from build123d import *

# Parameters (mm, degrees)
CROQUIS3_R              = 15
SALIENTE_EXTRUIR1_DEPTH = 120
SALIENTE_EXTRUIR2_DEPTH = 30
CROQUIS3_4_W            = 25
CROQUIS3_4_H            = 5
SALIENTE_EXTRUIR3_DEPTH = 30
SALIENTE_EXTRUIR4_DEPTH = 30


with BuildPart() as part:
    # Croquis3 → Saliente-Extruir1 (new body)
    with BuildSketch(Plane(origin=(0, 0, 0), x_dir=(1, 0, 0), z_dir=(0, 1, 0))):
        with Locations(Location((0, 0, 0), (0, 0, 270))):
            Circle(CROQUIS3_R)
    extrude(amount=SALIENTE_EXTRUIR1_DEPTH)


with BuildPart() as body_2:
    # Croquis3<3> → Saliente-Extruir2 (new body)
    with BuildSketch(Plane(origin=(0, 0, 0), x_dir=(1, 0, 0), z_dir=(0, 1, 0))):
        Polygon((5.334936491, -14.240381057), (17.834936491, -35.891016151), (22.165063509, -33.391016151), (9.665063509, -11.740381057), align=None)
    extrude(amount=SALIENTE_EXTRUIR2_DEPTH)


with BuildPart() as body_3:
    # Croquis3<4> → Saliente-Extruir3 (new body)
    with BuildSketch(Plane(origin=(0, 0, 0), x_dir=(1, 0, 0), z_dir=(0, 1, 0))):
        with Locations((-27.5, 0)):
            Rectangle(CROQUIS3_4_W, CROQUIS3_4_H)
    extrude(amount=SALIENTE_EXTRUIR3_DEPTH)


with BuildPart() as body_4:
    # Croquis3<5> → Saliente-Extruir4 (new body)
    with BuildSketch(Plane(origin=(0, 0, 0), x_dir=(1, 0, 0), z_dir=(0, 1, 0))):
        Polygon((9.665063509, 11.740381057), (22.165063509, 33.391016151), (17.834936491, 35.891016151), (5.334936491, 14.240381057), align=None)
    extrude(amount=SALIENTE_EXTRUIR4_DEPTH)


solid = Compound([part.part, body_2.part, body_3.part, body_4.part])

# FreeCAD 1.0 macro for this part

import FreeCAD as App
import Part
import Sketcher
from FreeCAD import Vector
Q = App.Units.Quantity

doc = App.newDocument("Part")
body = doc.addObject("PartDesign::Body", "Body")

# Sketch on XZ plane
sketch1 = body.newObject("Sketcher::SketchObject", "Sketch")
sketch1.AttachmentSupport = (doc.getObject("XZ_Plane"), [""])
sketch1.MapMode = "FlatFace"
sketch1.addGeometry(Part.Circle(Vector(0, 0, 0), Vector(0, 0, 1), 15), False)
sketch1.addConstraint([
    Sketcher.Constraint("Coincident", 0, 3, -1, 1),
    Sketcher.Constraint("Diameter", 0, 30.0),
])
pad1 = body.newObject("PartDesign::Pad", "Pad")
pad1.Profile = sketch1
pad1.Length = 120
pad1.Reversed = True
body2 = doc.addObject("PartDesign::Body", "Body001")

# Sketch on XZ plane
sketch2 = body2.newObject("Sketcher::SketchObject", "Sketch001")
sketch2.AttachmentSupport = (doc.getObject("XZ_Plane001"), [""])
sketch2.MapMode = "FlatFace"
sketch2.addGeometry([
    Part.LineSegment(Vector(5.3, 14.2, 0), Vector(17.8, 35.9, 0)),
    Part.LineSegment(Vector(17.8, 35.9, 0), Vector(22.2, 33.4, 0)),
    Part.LineSegment(Vector(22.2, 33.4, 0), Vector(9.7, 11.7, 0)),
    Part.LineSegment(Vector(9.7, 11.7, 0), Vector(5.3, 14.2, 0)),
], False)
sketch2.addConstraint([
    Sketcher.Constraint("Coincident", 0, 2, 1, 1),
    Sketcher.Constraint("Coincident", 1, 2, 2, 1),
    Sketcher.Constraint("Coincident", 2, 2, 3, 1),
    Sketcher.Constraint("Coincident", 3, 2, 0, 1),
    Sketcher.Constraint("Perpendicular", 0, 1),
    Sketcher.Constraint("Perpendicular", 1, 2),
    Sketcher.Constraint("Perpendicular", 2, 3),
    Sketcher.Constraint("Angle", 0, Q("60 deg")),
    Sketcher.Constraint("Distance", 0, 25.0),
    Sketcher.Constraint("Distance", 1, 5.0),
    Sketcher.Constraint("DistanceY", -1, 1, 2, 2, 11.740381),
    Sketcher.Constraint("DistanceX", -1, 1, 0, 2, 17.834936),
])
pad2 = body2.newObject("PartDesign::Pad", "Pad001")
pad2.Profile = sketch2
pad2.Length = 30
pad2.Reversed = True
body3 = doc.addObject("PartDesign::Body", "Body002")

# Sketch on XZ plane
sketch3 = body3.newObject("Sketcher::SketchObject", "Sketch002")
sketch3.AttachmentSupport = (doc.getObject("XZ_Plane002"), [""])
sketch3.MapMode = "FlatFace"
sketch3.addGeometry([
    Part.LineSegment(Vector(-40, -2, 0), Vector(-40, 2, 0)),
    Part.LineSegment(Vector(-40, 2, 0), Vector(-15, 2, 0)),
    Part.LineSegment(Vector(-15, 2, 0), Vector(-15, -2, 0)),
    Part.LineSegment(Vector(-15, -2, 0), Vector(-40, -2, 0)),
], False)
sketch3.addConstraint([
    Sketcher.Constraint("Coincident", 0, 2, 1, 1),
    Sketcher.Constraint("Coincident", 1, 2, 2, 1),
    Sketcher.Constraint("Coincident", 2, 2, 3, 1),
    Sketcher.Constraint("Coincident", 3, 2, 0, 1),
    Sketcher.Constraint("Vertical", 0),
    Sketcher.Constraint("Horizontal", 1),
    Sketcher.Constraint("Vertical", 2),
    Sketcher.Constraint("Horizontal", 3),
    Sketcher.Constraint("DistanceX", 1, 1, 1, 2, 25.0),
    Sketcher.Constraint("DistanceY", 0, 1, 0, 2, 5.0),
    Sketcher.Constraint("DistanceX", 0, 2, -1, 1, 40.0),
    Sketcher.Constraint("DistanceY", -1, 1, 0, 2, 2.5),
])
pad3 = body3.newObject("PartDesign::Pad", "Pad002")
pad3.Profile = sketch3
pad3.Length = 30
pad3.Reversed = True
body4 = doc.addObject("PartDesign::Body", "Body003")

# Sketch on XZ plane
sketch4 = body4.newObject("Sketcher::SketchObject", "Sketch003")
sketch4.AttachmentSupport = (doc.getObject("XZ_Plane003"), [""])
sketch4.MapMode = "FlatFace"
sketch4.addGeometry([
    Part.LineSegment(Vector(9.7, -11.7, 0), Vector(22.2, -33.4, 0)),
    Part.LineSegment(Vector(22.2, -33.4, 0), Vector(17.8, -35.9, 0)),
    Part.LineSegment(Vector(17.8, -35.9, 0), Vector(5.3, -14.2, 0)),
    Part.LineSegment(Vector(5.3, -14.2, 0), Vector(9.7, -11.7, 0)),
], False)
sketch4.addConstraint([
    Sketcher.Constraint("Coincident", 0, 2, 1, 1),
    Sketcher.Constraint("Coincident", 1, 2, 2, 1),
    Sketcher.Constraint("Coincident", 2, 2, 3, 1),
    Sketcher.Constraint("Coincident", 3, 2, 0, 1),
    Sketcher.Constraint("Perpendicular", 0, 1),
    Sketcher.Constraint("Perpendicular", 1, 2),
    Sketcher.Constraint("Perpendicular", 2, 3),
    Sketcher.Constraint("Angle", 0, Q("-60 deg")),
    Sketcher.Constraint("Distance", 0, 25.0),
    Sketcher.Constraint("Distance", 1, 5.0),
    Sketcher.Constraint("DistanceY", 2, 2, -1, 1, 14.240381),
    Sketcher.Constraint("DistanceX", -1, 1, 0, 2, 22.165064),
])
pad4 = body4.newObject("PartDesign::Pad", "Pad003")
pad4.Profile = sketch4
pad4.Length = 30
pad4.Reversed = True

doc.recompute()
